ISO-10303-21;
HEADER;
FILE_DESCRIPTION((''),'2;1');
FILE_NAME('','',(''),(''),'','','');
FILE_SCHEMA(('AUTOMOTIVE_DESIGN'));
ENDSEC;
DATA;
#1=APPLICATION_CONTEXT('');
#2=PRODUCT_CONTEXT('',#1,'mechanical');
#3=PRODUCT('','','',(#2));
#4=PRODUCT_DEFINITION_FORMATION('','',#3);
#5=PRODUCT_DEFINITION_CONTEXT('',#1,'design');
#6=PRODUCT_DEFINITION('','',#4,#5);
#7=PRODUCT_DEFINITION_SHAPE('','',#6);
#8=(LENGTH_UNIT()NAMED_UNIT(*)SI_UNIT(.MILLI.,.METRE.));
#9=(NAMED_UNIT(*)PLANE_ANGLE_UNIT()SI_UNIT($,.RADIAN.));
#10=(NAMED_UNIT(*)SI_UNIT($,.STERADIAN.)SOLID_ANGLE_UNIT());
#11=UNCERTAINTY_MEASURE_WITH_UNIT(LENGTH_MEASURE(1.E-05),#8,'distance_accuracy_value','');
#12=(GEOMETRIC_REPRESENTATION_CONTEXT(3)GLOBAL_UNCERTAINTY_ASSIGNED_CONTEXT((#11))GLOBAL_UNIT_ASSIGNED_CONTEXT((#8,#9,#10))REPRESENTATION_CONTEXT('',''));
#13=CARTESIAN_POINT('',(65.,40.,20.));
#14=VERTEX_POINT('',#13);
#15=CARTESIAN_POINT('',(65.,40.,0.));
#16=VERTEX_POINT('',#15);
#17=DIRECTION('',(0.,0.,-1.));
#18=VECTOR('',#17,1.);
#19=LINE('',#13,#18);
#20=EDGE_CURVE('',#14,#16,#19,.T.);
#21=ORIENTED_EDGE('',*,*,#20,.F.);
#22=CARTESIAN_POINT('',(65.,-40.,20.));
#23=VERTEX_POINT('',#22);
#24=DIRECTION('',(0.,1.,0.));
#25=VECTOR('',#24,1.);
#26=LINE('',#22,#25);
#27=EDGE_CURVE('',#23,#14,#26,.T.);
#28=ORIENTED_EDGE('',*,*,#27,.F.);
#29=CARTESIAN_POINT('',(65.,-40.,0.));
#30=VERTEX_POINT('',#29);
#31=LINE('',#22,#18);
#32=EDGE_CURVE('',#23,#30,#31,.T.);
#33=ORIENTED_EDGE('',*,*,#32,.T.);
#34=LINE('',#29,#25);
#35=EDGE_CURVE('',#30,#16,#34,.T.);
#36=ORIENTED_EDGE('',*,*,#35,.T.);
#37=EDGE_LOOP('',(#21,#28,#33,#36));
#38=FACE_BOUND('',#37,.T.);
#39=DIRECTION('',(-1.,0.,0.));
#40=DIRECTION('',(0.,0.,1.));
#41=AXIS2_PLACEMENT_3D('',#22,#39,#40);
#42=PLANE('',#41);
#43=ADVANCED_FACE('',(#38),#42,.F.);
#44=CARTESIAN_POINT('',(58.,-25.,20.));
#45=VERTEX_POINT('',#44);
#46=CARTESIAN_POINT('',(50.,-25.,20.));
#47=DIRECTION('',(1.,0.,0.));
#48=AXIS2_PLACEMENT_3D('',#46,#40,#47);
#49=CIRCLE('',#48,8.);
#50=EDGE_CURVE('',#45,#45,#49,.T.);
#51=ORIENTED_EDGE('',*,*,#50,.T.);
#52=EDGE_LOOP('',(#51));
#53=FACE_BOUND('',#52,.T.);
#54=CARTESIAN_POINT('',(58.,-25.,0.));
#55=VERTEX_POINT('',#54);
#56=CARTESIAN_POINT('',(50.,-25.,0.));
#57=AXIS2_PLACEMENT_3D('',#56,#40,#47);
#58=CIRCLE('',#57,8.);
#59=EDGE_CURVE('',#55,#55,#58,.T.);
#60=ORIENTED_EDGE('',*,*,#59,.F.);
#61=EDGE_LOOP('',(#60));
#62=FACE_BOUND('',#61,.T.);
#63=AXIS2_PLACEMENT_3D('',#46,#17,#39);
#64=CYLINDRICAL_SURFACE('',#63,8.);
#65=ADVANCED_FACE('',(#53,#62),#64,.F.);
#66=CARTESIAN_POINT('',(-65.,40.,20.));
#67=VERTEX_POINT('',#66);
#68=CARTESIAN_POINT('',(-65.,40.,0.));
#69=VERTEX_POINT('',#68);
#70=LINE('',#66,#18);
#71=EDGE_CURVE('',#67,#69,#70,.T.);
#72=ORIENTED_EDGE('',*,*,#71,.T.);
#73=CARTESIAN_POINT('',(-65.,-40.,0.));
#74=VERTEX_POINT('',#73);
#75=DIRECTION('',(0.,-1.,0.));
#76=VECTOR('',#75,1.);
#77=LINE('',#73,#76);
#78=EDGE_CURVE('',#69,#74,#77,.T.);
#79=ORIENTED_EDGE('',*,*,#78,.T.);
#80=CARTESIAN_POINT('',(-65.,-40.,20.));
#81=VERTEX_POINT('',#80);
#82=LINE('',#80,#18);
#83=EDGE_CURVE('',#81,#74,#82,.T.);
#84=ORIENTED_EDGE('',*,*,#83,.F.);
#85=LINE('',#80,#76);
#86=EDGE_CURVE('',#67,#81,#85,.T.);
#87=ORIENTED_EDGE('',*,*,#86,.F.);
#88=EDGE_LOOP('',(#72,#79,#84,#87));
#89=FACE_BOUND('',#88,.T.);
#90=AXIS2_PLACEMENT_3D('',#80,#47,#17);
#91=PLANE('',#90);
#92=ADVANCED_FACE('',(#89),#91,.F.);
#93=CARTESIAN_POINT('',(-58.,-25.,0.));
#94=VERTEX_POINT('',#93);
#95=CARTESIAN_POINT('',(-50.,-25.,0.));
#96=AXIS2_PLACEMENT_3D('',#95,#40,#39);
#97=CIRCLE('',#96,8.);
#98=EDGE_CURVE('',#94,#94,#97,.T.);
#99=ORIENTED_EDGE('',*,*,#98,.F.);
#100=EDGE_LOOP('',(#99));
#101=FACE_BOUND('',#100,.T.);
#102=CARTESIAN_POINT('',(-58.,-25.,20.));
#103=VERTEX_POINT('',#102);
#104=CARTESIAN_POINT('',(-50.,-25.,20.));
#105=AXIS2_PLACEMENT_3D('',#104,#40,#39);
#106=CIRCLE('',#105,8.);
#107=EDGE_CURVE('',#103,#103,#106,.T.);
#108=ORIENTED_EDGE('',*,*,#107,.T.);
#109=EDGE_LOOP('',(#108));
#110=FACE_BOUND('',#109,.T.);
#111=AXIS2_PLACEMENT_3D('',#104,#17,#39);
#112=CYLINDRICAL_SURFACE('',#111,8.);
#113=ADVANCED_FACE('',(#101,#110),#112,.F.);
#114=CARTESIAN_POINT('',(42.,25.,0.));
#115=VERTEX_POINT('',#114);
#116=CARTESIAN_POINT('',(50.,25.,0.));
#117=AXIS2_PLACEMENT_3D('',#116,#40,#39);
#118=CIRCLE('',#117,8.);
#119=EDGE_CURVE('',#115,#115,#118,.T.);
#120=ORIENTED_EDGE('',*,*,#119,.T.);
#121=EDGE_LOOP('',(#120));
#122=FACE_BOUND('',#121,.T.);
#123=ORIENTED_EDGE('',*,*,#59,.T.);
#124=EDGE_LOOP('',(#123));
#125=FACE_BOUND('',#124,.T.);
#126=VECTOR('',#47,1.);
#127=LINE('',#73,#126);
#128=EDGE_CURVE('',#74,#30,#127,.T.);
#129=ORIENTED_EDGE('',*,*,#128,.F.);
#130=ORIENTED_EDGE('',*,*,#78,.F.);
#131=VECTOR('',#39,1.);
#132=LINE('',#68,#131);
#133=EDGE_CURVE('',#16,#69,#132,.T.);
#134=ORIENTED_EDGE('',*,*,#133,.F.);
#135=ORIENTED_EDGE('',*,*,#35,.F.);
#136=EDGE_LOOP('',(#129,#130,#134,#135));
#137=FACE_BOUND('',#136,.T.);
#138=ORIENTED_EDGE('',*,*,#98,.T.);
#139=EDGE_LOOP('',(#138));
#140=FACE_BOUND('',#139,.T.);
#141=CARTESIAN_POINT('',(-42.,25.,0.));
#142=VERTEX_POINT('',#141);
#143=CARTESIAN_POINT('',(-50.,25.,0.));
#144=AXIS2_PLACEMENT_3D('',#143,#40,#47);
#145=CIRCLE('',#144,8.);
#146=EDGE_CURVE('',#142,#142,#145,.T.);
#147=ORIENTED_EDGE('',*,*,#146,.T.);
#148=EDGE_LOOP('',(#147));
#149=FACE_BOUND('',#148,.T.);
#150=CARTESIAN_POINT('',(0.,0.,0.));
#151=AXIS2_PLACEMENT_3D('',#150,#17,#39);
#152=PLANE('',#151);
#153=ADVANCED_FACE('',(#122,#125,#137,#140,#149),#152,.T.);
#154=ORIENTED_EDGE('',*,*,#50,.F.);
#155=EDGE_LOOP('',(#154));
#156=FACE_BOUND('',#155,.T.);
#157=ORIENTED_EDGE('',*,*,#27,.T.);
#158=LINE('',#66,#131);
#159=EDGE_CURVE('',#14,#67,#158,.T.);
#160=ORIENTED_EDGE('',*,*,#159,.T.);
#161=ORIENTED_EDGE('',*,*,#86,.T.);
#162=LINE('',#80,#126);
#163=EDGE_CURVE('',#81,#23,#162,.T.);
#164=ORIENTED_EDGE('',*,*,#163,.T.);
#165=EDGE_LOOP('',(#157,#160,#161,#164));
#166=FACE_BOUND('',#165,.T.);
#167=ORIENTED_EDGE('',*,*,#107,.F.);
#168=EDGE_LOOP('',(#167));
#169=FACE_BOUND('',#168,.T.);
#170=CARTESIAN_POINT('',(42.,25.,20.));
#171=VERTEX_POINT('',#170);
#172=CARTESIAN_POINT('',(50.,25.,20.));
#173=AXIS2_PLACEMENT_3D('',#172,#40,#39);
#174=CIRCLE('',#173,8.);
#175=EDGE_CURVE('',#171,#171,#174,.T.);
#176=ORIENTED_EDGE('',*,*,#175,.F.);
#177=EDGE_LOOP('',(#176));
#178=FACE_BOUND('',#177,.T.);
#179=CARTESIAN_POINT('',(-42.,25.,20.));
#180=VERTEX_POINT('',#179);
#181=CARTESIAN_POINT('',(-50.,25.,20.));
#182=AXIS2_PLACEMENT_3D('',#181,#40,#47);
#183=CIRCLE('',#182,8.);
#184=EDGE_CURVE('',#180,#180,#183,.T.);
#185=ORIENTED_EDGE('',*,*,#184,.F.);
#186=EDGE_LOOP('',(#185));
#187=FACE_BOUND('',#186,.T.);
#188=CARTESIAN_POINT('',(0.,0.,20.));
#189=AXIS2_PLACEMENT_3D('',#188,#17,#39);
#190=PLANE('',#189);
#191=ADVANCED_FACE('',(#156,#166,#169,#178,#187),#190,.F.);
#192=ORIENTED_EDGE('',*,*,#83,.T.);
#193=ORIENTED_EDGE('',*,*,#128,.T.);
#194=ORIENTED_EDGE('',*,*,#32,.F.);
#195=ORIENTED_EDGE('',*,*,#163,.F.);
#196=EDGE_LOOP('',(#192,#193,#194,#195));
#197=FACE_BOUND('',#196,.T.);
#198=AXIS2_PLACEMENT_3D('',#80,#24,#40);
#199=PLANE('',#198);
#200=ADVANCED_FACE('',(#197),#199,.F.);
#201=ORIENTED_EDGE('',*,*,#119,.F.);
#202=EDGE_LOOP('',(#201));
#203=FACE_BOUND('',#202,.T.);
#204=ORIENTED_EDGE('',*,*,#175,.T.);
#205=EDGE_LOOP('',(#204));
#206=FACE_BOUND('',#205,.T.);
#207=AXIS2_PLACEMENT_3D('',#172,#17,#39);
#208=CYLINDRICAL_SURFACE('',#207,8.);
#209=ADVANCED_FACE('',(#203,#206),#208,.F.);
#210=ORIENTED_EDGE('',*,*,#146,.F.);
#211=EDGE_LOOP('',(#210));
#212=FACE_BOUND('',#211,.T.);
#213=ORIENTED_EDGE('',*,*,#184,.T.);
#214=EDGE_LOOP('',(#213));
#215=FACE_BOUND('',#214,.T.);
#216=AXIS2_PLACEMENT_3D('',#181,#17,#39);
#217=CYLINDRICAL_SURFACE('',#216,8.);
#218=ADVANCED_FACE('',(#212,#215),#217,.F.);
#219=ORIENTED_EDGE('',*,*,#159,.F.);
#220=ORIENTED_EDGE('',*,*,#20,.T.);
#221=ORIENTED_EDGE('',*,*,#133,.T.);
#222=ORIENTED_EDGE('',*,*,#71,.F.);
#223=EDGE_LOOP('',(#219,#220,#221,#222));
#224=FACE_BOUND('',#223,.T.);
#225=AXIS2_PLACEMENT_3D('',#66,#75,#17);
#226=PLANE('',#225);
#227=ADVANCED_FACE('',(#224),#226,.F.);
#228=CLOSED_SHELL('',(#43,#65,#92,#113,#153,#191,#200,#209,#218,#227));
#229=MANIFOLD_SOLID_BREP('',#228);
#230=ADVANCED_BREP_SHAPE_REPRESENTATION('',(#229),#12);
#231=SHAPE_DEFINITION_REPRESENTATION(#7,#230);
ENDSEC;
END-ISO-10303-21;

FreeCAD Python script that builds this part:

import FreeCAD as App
import Part
import Sketcher

doc = App.newDocument("Part")
body = doc.addObject("PartDesign::Body", "Body")

sketch1 = body.newObject("Sketcher::SketchObject", "Sketch")
sketch1.AttachmentSupport = (doc.getObject("XY_Plane"), [""])
sketch1.MapMode = "FlatFace"
sketch1.addGeometry([
    Part.LineSegment(App.Vector(-65, 40, 0), App.Vector(-65, -40, 0)),
    Part.LineSegment(App.Vector(-65, -40, 0), App.Vector(65, -40, 0)),
    Part.LineSegment(App.Vector(65, -40, 0), App.Vector(65, 40, 0)),
    Part.LineSegment(App.Vector(65, 40, 0), App.Vector(-65, 40, 0)),
    Part.Circle(App.Vector(-50, -25, 0), App.Vector(0, 0, 1), 8),
    Part.Circle(App.Vector(50, -25, 0), App.Vector(0, 0, 1), 8),
    Part.Circle(App.Vector(-50, 25, 0), App.Vector(0, 0, 1), 8),
    Part.Circle(App.Vector(50, 25, 0), App.Vector(0, 0, 1), 8),
], False)
sketch1.addConstraint([
    Sketcher.Constraint("Coincident", 0, 2, 1, 1),
    Sketcher.Constraint("Coincident", 1, 2, 2, 1),
    Sketcher.Constraint("Coincident", 2, 2, 3, 1),
    Sketcher.Constraint("Coincident", 3, 2, 0, 1),
    Sketcher.Constraint("Vertical", 0),
    Sketcher.Constraint("Horizontal", 1),
    Sketcher.Constraint("Vertical", 2),
    Sketcher.Constraint("Horizontal", 3),
    Sketcher.Constraint("Equal", 4, 5),
    Sketcher.Constraint("Equal", 5, 6),
    Sketcher.Constraint("Equal", 6, 7),
    Sketcher.Constraint("Symmetric", 5, 3, 6, 3, -1, 1),
    Sketcher.Constraint("Symmetric", 4, 3, 7, 3, -1, 1),
    Sketcher.Constraint("Symmetric", 0, 2, 2, 2, -1, 1),
    Sketcher.Constraint("Symmetric", 4, 3, 5, 3, -2),
    Sketcher.Constraint("Diameter", 4, 16.0),
    Sketcher.Constraint("DistanceX", 1, 1, 1, 2, 130.0),
    Sketcher.Constraint("DistanceY", 0, 2, 0, 1, 80.0),
    Sketcher.Constraint("DistanceX", 4, 3, -1, 1, 50.0),
    Sketcher.Constraint("DistanceY", 4, 3, -1, 1, 25.0),
])
pad1 = body.newObject("PartDesign::Pad", "Pad")
pad1.Profile = sketch1
pad1.Length = 20

doc.recompute()
